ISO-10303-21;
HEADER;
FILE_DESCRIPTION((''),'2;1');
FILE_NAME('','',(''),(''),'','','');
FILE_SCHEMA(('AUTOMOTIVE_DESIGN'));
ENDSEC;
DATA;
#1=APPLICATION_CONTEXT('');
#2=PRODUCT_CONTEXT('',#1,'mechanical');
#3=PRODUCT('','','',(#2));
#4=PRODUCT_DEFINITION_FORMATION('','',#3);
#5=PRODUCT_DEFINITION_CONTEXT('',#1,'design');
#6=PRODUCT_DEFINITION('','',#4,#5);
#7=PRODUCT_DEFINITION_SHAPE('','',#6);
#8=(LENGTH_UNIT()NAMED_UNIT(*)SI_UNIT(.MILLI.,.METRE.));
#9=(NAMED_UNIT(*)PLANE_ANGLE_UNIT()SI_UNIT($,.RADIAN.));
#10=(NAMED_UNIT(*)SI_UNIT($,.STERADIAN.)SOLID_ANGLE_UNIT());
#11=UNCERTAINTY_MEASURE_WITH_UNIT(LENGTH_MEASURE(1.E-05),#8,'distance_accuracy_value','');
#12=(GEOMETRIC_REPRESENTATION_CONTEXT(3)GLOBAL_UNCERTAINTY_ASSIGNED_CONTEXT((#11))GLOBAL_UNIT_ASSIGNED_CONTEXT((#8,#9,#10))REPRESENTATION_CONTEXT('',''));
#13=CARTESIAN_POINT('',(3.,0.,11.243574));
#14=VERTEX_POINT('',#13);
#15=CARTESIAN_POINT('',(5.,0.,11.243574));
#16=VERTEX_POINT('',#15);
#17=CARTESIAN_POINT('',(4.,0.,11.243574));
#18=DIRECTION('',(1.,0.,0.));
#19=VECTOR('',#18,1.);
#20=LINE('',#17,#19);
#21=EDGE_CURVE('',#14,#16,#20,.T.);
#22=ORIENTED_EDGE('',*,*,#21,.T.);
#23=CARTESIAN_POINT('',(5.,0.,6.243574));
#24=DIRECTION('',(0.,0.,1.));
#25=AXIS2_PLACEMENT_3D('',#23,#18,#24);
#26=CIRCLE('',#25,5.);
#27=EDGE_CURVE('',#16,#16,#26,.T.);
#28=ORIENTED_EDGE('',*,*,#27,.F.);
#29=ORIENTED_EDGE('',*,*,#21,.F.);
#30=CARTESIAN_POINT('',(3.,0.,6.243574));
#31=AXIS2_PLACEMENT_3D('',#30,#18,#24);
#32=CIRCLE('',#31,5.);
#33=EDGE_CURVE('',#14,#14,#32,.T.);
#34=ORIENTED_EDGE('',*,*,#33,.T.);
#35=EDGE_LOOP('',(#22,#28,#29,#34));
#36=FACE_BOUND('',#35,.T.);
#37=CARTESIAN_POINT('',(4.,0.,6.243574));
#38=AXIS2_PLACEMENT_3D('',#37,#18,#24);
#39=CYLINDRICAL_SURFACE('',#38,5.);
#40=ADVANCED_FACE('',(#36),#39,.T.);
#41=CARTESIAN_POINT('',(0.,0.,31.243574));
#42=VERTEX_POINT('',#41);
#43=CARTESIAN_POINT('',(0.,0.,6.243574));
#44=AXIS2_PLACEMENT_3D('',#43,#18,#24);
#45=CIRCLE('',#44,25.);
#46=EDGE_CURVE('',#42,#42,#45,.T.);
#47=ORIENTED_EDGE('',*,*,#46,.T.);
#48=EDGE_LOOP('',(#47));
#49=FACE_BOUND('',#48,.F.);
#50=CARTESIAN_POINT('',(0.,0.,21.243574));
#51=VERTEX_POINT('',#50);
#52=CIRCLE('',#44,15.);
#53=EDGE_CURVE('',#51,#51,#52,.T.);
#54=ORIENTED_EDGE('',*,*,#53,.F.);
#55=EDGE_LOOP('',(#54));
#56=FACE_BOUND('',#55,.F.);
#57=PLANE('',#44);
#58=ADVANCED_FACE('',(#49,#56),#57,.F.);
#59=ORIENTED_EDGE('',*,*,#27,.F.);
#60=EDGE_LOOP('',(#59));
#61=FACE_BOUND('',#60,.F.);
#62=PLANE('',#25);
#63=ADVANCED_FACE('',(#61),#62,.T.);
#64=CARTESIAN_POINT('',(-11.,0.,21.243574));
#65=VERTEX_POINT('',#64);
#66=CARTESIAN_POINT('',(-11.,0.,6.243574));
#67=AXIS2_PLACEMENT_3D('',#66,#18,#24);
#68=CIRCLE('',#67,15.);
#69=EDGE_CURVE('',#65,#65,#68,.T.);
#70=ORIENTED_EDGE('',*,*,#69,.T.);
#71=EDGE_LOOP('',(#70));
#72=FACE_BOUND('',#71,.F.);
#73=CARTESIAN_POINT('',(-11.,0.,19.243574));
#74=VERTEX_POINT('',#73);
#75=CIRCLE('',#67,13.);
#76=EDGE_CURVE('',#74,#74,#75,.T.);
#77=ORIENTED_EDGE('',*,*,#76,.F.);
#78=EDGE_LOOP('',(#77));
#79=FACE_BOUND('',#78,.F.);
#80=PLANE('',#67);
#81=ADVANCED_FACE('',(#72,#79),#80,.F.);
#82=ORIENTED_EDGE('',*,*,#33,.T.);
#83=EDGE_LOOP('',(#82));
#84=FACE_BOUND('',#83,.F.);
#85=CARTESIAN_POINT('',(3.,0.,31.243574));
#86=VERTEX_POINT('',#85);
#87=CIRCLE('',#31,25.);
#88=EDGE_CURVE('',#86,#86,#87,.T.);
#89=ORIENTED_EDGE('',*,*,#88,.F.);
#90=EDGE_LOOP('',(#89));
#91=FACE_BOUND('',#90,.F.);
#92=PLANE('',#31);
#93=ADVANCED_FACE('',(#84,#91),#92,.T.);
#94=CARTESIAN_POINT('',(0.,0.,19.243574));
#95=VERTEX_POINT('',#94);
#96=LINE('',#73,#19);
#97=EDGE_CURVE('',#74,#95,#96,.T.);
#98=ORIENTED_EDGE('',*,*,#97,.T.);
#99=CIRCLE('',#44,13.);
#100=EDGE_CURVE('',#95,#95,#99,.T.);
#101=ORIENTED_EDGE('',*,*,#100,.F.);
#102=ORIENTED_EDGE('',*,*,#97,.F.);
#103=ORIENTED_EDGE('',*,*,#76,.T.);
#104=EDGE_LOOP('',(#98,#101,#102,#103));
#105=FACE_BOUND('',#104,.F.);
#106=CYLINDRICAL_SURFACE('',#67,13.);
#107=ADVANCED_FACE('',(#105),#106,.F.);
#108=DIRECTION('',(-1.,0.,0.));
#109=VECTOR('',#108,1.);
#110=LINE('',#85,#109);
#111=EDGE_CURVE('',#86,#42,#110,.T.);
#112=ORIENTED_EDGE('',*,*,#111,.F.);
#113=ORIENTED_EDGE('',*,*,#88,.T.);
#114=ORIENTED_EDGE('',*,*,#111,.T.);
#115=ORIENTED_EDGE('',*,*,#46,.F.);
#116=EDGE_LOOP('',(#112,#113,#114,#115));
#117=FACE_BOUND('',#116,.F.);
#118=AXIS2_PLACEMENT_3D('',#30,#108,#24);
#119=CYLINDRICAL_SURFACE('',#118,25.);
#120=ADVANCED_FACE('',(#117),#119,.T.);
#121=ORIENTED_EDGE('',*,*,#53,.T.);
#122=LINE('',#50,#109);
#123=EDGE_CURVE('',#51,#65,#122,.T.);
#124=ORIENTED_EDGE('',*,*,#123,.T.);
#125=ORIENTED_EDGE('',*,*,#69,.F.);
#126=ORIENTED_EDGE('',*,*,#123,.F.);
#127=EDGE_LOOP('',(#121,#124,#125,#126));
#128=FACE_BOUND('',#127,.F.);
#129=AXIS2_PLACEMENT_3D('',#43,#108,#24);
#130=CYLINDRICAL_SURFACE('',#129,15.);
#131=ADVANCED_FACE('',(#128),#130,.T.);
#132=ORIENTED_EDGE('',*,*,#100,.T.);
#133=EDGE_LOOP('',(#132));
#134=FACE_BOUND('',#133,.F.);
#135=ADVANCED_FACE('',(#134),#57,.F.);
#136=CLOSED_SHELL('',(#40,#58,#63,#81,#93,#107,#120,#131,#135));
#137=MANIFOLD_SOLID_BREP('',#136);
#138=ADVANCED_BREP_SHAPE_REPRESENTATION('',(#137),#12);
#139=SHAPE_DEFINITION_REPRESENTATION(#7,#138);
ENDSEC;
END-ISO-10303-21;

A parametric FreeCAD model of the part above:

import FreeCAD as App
import Part
import Sketcher

doc = App.newDocument("Part")
body = doc.addObject("PartDesign::Body", "Body")

# Sketch on XZ plane
sketch1 = body.newObject("Sketcher::SketchObject", "Sketch")
sketch1.AttachmentSupport = (doc.getObject("XZ_Plane"), [""])
sketch1.MapMode = "FlatFace"
sketch1.addGeometry(Part.LineSegment(App.Vector(3, 31.243574, 0), App.Vector(0, 31.243574, 0)), False)
sketch1.addGeometry(Part.LineSegment(App.Vector(0, 31.243574, 0), App.Vector(0, 21.243574, 0)), False)
sketch1.addGeometry(Part.LineSegment(App.Vector(0, 21.243574, 0), App.Vector(-11, 21.243574, 0)), False)
sketch1.addGeometry(Part.LineSegment(App.Vector(-11, 21.243574, 0), App.Vector(-11, 19.243574, 0)), False)
sketch1.addGeometry(Part.LineSegment(App.Vector(-11, 19.243574, 0), App.Vector(0, 19.243574, 0)), False)
sketch1.addGeometry(Part.LineSegment(App.Vector(0, 19.243574, 0), App.Vector(0, 6.243574, 0)), False)
sketch1.addGeometry(Part.LineSegment(App.Vector(0, 6.243574, 0), App.Vector(5, 6.243574, 0)), False)
sketch1.addGeometry(Part.LineSegment(App.Vector(5, 6.243574, 0), App.Vector(5, 11.243574, 0)), False)
sketch1.addGeometry(Part.LineSegment(App.Vector(5, 11.243574, 0), App.Vector(3, 11.243574, 0)), False)
sketch1.addGeometry(Part.LineSegment(App.Vector(3, 11.243574, 0), App.Vector(3, 31.243574, 0)), False)
sketch1.addGeometry(Part.LineSegment(App.Vector(-11, 6.243574, 0), App.Vector(5, 6.243574, 0)), True)  # axis
sketch1.addConstraint(Sketcher.Constraint("Coincident", 0, 2, 1, 1))
sketch1.addConstraint(Sketcher.Constraint("Coincident", 1, 2, 2, 1))
sketch1.addConstraint(Sketcher.Constraint("Coincident", 2, 2, 3, 1))
sketch1.addConstraint(Sketcher.Constraint("Coincident", 3, 2, 4, 1))
sketch1.addConstraint(Sketcher.Constraint("Coincident", 4, 2, 5, 1))
sketch1.addConstraint(Sketcher.Constraint("Coincident", 5, 2, 6, 1))
sketch1.addConstraint(Sketcher.Constraint("Coincident", 6, 2, 7, 1))
sketch1.addConstraint(Sketcher.Constraint("Coincident", 7, 2, 8, 1))
sketch1.addConstraint(Sketcher.Constraint("Coincident", 8, 2, 9, 1))
sketch1.addConstraint(Sketcher.Constraint("Coincident", 9, 2, 0, 1))
sketch1.addConstraint(Sketcher.Constraint("Horizontal", 0))
sketch1.addConstraint(Sketcher.Constraint("Vertical", 1))
sketch1.addConstraint(Sketcher.Constraint("Horizontal", 2))
sketch1.addConstraint(Sketcher.Constraint("Vertical", 3))
sketch1.addConstraint(Sketcher.Constraint("Horizontal", 4))
sketch1.addConstraint(Sketcher.Constraint("Vertical", 5))
sketch1.addConstraint(Sketcher.Constraint("Horizontal", 6))
sketch1.addConstraint(Sketcher.Constraint("Vertical", 7))
sketch1.addConstraint(Sketcher.Constraint("Horizontal", 8))
sketch1.addConstraint(Sketcher.Constraint("Vertical", 9))
sketch1.addConstraint(Sketcher.Constraint("Horizontal", 10))
sketch1.addConstraint(Sketcher.Constraint("Coincident", 10, 2, 6, 2))
sketch1.addConstraint(Sketcher.Constraint("PointOnObject", 0, 2, -2))
sketch1.addConstraint(Sketcher.Constraint("PointOnObject", 4, 2, -2))
sketch1.addConstraint(Sketcher.Constraint("Vertical", 3, 2, 10, 1))
sketch1.addConstraint(Sketcher.Constraint("Equal", 8, 3))
sketch1.addConstraint(Sketcher.Constraint("Equal", 6, 7))
sketch1.addConstraint(Sketcher.Constraint("DistanceX", 0, 2, 0, 1, 3.0))
sketch1.addConstraint(Sketcher.Constraint("DistanceX", 2, 2, 2, 1, 11.0))
sketch1.addConstraint(Sketcher.Constraint("DistanceX", 6, 1, 6, 2, 5.0))
sketch1.addConstraint(Sketcher.Constraint("DistanceY", 1, 2, 1, 1, 10.0))
sketch1.addConstraint(Sketcher.Constraint("DistanceY", 5, 2, 5, 1, 13.0))
sketch1.addConstraint(Sketcher.Constraint("DistanceY", -1, 1, 0, 2, 31.243574))
revolution = body.newObject("PartDesign::Revolution", "Revolution")
revolution.Profile = sketch1
revolution.ReferenceAxis = (sketch1, ["Axis0"])
revolution.Angle = 360

doc.recompute()
